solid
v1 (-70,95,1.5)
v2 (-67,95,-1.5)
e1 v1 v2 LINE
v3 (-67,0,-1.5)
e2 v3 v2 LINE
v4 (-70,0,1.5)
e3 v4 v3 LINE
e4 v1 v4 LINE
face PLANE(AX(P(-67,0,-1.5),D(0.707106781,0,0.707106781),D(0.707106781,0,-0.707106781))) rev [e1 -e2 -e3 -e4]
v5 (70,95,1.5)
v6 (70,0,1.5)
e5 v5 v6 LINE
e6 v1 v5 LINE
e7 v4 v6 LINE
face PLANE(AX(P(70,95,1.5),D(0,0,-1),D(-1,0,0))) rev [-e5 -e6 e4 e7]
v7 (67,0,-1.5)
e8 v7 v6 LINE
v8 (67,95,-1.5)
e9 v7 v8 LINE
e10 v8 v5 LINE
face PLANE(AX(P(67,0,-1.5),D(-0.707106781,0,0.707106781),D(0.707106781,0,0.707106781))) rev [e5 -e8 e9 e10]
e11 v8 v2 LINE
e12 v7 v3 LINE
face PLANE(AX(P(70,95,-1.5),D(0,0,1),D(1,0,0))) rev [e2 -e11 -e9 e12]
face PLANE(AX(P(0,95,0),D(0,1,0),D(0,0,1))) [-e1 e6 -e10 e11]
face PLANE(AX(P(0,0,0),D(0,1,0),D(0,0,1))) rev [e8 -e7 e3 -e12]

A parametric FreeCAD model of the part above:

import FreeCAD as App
import Part
import Sketcher

V = App.Vector
Q = App.Units.Quantity

doc = App.newDocument("Part")
body = doc.addObject("PartDesign::Body", "Body")

sketch1 = body.newObject("Sketcher::SketchObject", "Sketch")
sketch1.AttachmentSupport = (doc.getObject("XZ_Plane"), [""])
sketch1.MapMode = "FlatFace"
sketch1.addGeometry(Part.LineSegment(V(-70, -1.5, 0), V(-70, 1.5, 0)), False)
sketch1.addGeometry(Part.LineSegment(V(-70, 1.5, 0), V(70, 1.5, 0)), False)
sketch1.addGeometry(Part.LineSegment(V(70, 1.5, 0), V(70, -1.5, 0)), False)
sketch1.addGeometry(Part.LineSegment(V(70, -1.5, 0), V(-70, -1.5, 0)), False)
sketch1.addConstraint(Sketcher.Constraint("Coincident", 0, 2, 1, 1))
sketch1.addConstraint(Sketcher.Constraint("Coincident", 1, 2, 2, 1))
sketch1.addConstraint(Sketcher.Constraint("Coincident", 2, 2, 3, 1))
sketch1.addConstraint(Sketcher.Constraint("Coincident", 3, 2, 0, 1))
sketch1.addConstraint(Sketcher.Constraint("Vertical", 0))
sketch1.addConstraint(Sketcher.Constraint("Horizontal", 1))
sketch1.addConstraint(Sketcher.Constraint("Vertical", 2))
sketch1.addConstraint(Sketcher.Constraint("Horizontal", 3))
sketch1.addConstraint(Sketcher.Constraint("Symmetric", 0, 2, 2, 2, -1, 1))
sketch1.addConstraint(Sketcher.Constraint("DistanceX", 1, 1, 1, 2, Q("140 mm")))
sketch1.addConstraint(Sketcher.Constraint("DistanceY", 0, 1, 0, 2, Q("3 mm")))
pad1 = body.newObject("PartDesign::Pad", "Pad")
pad1.Profile = sketch1
pad1.Length = 95
pad1.Reversed = True

sketch2 = body.newObject("Sketcher::SketchObject", "Sketch001")
sketch2.AttachmentSupport = (doc.getObject("XZ_Plane"), [""])
sketch2.MapMode = "FlatFace"
sketch2.AttachmentOffset = App.Placement(V(0, 0, -95), App.Rotation())
sketch2.addGeometry(Part.LineSegment(V(70, 1.5, 0), V(70, -1.5, 0)), False)
sketch2.addGeometry(Part.LineSegment(V(70, -1.5, 0), V(67, -1.5, 0)), False)
sketch2.addGeometry(Part.LineSegment(V(67, -1.5, 0), V(70, 1.5, 0)), False)
sketch2.addGeometry(Part.LineSegment(V(-70, -1.5, 0), V(-70, 1.5, 0)), False)
sketch2.addGeometry(Part.LineSegment(V(-70, 1.5, 0), V(-67, -1.5, 0)), False)
sketch2.addGeometry(Part.LineSegment(V(-67, -1.5, 0), V(-70, -1.5, 0)), False)
sketch2.addConstraint(Sketcher.Constraint("Coincident", 0, 2, 1, 1))
sketch2.addConstraint(Sketcher.Constraint("Coincident", 1, 2, 2, 1))
sketch2.addConstraint(Sketcher.Constraint("Coincident", 2, 2, 0, 1))
sketch2.addConstraint(Sketcher.Constraint("Coincident", 3, 2, 4, 1))
sketch2.addConstraint(Sketcher.Constraint("Coincident", 4, 2, 5, 1))
sketch2.addConstraint(Sketcher.Constraint("Coincident", 5, 2, 3, 1))
sketch2.addConstraint(Sketcher.Constraint("Vertical", 0))
sketch2.addConstraint(Sketcher.Constraint("Horizontal", 1))
sketch2.addConstraint(Sketcher.Constraint("Vertical", 3))
sketch2.addConstraint(Sketcher.Constraint("Horizontal", 5))
sketch2.addConstraint(Sketcher.Constraint("Symmetric", 0, 2, 3, 2, -1, 1))
sketch2.addConstraint(Sketcher.Constraint("Symmetric", 1, 2, 4, 2, -2))
sketch2.addConstraint(Sketcher.Constraint("Perpendicular", 2, 4))
sketch2.addConstraint(Sketcher.Constraint("Horizontal", 2, 2, 3, 2))
sketch2.addConstraint(Sketcher.Constraint("DistanceX", 1, 2, 1, 1, Q("3 mm")))
sketch2.addConstraint(Sketcher.Constraint("DistanceX", -1, 1, 0, 2, Q("70 mm")))
pocket1 = body.newObject("PartDesign::Pocket", "Pocket")
pocket1.Profile = sketch2
pocket1.Length = 95
pocket1.Reversed = True

doc.recompute()
